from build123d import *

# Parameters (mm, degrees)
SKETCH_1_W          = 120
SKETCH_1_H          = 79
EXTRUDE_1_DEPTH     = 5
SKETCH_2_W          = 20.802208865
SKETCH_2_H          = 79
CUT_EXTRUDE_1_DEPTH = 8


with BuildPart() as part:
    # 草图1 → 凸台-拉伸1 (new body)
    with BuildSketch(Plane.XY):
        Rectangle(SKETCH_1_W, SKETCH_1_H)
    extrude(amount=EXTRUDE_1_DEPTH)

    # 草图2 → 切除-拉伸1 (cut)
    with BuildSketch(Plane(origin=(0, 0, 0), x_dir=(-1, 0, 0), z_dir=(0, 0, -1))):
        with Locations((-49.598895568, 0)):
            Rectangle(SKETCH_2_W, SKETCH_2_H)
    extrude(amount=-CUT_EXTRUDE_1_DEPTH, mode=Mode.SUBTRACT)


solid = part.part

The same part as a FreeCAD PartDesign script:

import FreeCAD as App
import Part
import Sketcher


def add_polygon(sketch, points):
    """Adds a closed chain of lines whose ends are joined by coincident constraints."""
    first, n = sketch.GeometryCount, len(points)
    for a, b in zip(points, points[1:] + points[:1]):
        sketch.addGeometry(Part.LineSegment(App.Vector(*a, 0), App.Vector(*b, 0)), False)
    for i in range(n):
        sketch.addConstraint(Sketcher.Constraint("Coincident", first + i, 2, first + (i + 1) % n, 1))

doc = App.newDocument("Part")
body = doc.addObject("PartDesign::Body", "Body")

# Sketch on XY plane
sketch1 = body.newObject("Sketcher::SketchObject", "Sketch")
sketch1.AttachmentSupport = (doc.getObject("XY_Plane"), [""])
sketch1.MapMode = "FlatFace"
add_polygon(sketch1, [(-60, 39.5), (-60, -39.5), (60, -39.5), (60, 39.5)])  # lines 0-3
sketch1.addConstraint(Sketcher.Constraint("Vertical", 0))
sketch1.addConstraint(Sketcher.Constraint("Horizontal", 1))
sketch1.addConstraint(Sketcher.Constraint("Vertical", 2))
sketch1.addConstraint(Sketcher.Constraint("Horizontal", 3))
sketch1.addConstraint(Sketcher.Constraint("Symmetric", 0, 2, 2, 2, -1, 1))
sketch1.addConstraint(Sketcher.Constraint("DistanceX", 1, 1, 1, 2, 120.0))
sketch1.addConstraint(Sketcher.Constraint("DistanceY", 0, 2, 0, 1, 79.0))
pad1 = body.newObject("PartDesign::Pad", "Pad")
pad1.Profile = sketch1
pad1.Length = 5

# Sketch on XY plane
sketch2 = body.newObject("Sketcher::SketchObject", "Sketch001")
sketch2.AttachmentSupport = (doc.getObject("XY_Plane"), [""])
sketch2.MapMode = "FlatFace"
add_polygon(sketch2, [(60, 39.5), (60, -39.5), (39.197791, -39.5), (39.197791, 39.5)])  # lines 0-3
sketch2.addConstraint(Sketcher.Constraint("Vertical", 0))
sketch2.addConstraint(Sketcher.Constraint("Horizontal", 1))
sketch2.addConstraint(Sketcher.Constraint("Vertical", 2))
sketch2.addConstraint(Sketcher.Constraint("Horizontal", 3))
sketch2.addConstraint(Sketcher.Constraint("DistanceY", 0, 2, 0, 1, 79.0))
sketch2.addConstraint(Sketcher.Constraint("DistanceX", -1, 1, 0, 2, 60.0))
sketch2.addConstraint(Sketcher.Constraint("DistanceY", 0, 2, -1, 1, 39.5))
sketch2.addConstraint(Sketcher.Constraint("DistanceX", 1, 2, 1, 1, 20.802209))
pocket1 = body.newObject("PartDesign::Pocket", "Pocket")
pocket1.Profile = sketch2
pocket1.Length = 8
pocket1.Reversed = True

doc.recompute()
